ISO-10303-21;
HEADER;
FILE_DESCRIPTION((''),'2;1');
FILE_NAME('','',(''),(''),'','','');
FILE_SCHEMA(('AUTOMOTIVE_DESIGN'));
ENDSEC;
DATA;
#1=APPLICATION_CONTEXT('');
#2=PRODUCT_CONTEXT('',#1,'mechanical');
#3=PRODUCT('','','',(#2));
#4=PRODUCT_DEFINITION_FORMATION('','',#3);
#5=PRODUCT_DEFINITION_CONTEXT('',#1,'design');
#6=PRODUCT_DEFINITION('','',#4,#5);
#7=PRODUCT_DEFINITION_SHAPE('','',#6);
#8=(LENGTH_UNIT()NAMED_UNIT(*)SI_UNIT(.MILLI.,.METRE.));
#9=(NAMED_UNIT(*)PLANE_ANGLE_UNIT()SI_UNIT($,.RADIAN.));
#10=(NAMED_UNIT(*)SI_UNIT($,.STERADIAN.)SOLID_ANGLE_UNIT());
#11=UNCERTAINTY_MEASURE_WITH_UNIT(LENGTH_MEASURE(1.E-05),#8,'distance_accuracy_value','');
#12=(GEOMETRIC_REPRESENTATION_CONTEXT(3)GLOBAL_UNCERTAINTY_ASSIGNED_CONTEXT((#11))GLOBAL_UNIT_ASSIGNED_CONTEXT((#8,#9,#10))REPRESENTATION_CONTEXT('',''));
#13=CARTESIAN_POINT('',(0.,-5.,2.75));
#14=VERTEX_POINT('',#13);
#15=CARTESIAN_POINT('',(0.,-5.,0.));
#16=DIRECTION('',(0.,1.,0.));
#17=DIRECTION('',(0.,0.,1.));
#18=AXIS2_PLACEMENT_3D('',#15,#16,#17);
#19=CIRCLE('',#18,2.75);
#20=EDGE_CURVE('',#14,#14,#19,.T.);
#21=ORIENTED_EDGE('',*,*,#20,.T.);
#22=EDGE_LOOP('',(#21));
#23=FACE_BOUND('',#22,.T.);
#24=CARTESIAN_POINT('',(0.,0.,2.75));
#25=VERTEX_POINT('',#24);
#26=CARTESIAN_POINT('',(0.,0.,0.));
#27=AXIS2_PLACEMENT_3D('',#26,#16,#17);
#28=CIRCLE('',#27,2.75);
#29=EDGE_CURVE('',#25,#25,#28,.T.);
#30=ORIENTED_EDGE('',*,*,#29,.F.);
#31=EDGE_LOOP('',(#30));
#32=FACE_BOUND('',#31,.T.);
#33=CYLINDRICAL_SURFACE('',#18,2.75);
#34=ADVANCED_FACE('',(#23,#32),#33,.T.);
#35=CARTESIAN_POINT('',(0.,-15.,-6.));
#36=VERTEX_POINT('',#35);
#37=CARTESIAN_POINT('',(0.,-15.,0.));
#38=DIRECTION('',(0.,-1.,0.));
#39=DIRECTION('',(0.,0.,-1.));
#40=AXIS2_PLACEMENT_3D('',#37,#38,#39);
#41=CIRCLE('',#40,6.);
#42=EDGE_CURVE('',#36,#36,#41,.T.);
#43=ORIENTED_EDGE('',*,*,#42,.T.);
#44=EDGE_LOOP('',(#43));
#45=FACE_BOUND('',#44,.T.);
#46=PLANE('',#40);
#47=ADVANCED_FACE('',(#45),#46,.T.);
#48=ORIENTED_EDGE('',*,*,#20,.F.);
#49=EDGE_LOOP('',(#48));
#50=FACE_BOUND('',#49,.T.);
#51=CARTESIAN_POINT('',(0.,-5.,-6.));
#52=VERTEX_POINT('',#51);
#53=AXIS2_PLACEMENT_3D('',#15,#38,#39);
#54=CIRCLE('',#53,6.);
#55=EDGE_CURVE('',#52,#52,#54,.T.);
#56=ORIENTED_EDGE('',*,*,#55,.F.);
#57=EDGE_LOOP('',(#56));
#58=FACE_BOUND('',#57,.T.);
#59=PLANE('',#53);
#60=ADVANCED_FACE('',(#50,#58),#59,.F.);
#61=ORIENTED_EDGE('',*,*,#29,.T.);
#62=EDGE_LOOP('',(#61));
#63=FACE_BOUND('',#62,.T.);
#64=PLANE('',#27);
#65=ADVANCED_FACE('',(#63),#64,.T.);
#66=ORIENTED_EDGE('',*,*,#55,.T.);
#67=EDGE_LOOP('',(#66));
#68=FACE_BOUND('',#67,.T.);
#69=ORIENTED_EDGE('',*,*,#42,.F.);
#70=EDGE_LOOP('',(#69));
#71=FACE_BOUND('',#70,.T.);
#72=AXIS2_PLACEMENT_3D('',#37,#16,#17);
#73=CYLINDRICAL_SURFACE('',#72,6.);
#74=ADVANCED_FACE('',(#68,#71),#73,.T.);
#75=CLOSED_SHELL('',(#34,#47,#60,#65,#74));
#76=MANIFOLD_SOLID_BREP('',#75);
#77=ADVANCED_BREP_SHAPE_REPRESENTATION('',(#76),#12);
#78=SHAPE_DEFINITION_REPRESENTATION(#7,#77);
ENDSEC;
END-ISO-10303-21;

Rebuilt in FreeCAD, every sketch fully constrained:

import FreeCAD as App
import Part
import Sketcher

doc = App.newDocument("Part")
params = doc.addObject("Spreadsheet::Sheet", "Params")
for row, (alias, value) in enumerate([
    ("sketch1_diameter", "5.5 mm"),
    ("pad1_length", "5 mm"),
    ("sketch2_diameter", "12 mm"),
    ("pad2_length", "10 mm"),
], start=1):
    params.set(f"A{row}", alias)
    params.set(f"B{row}", "=" + value)
    params.setAlias(f"B{row}", alias)

body = doc.addObject("PartDesign::Body", "Body")

# Sketch on XZ plane
sketch1 = body.newObject("Sketcher::SketchObject", "Sketch")
sketch1.AttachmentSupport = (doc.getObject("XZ_Plane"), [""])
sketch1.MapMode = "FlatFace"
sketch1.addGeometry(Part.Circle(App.Vector(0, 0, 0), App.Vector(0, 0, 1), 2.8), False)
sketch1.addConstraint([
    Sketcher.Constraint("Coincident", 0, 3, -1, 1),
    Sketcher.Constraint("Diameter", 0, 5.5),
])
sketch1.setExpression("Constraints[1]", "Params.sketch1_diameter")
pad1 = body.newObject("PartDesign::Pad", "Pad")
pad1.Profile = sketch1
pad1.setExpression("Length", "Params.pad1_length")

# Sketch on XZ plane
sketch2 = body.newObject("Sketcher::SketchObject", "Sketch001")
sketch2.AttachmentSupport = (doc.getObject("XZ_Plane"), [""])
sketch2.MapMode = "FlatFace"
sketch2.AttachmentOffset = App.Placement(App.Vector(0, 0, 5), App.Rotation())
sketch2.addGeometry(Part.Circle(App.Vector(0, 0, 0), App.Vector(0, 0, 1), 6), False)
sketch2.addConstraint([
    Sketcher.Constraint("Coincident", 0, 3, -1, 1),
    Sketcher.Constraint("Diameter", 0, 12.0),
])
sketch2.setExpression("Constraints[1]", "Params.sketch2_diameter")
pad2 = body.newObject("PartDesign::Pad", "Pad001")
pad2.Profile = sketch2
pad2.setExpression("Length", "Params.pad2_length")

doc.recompute()
